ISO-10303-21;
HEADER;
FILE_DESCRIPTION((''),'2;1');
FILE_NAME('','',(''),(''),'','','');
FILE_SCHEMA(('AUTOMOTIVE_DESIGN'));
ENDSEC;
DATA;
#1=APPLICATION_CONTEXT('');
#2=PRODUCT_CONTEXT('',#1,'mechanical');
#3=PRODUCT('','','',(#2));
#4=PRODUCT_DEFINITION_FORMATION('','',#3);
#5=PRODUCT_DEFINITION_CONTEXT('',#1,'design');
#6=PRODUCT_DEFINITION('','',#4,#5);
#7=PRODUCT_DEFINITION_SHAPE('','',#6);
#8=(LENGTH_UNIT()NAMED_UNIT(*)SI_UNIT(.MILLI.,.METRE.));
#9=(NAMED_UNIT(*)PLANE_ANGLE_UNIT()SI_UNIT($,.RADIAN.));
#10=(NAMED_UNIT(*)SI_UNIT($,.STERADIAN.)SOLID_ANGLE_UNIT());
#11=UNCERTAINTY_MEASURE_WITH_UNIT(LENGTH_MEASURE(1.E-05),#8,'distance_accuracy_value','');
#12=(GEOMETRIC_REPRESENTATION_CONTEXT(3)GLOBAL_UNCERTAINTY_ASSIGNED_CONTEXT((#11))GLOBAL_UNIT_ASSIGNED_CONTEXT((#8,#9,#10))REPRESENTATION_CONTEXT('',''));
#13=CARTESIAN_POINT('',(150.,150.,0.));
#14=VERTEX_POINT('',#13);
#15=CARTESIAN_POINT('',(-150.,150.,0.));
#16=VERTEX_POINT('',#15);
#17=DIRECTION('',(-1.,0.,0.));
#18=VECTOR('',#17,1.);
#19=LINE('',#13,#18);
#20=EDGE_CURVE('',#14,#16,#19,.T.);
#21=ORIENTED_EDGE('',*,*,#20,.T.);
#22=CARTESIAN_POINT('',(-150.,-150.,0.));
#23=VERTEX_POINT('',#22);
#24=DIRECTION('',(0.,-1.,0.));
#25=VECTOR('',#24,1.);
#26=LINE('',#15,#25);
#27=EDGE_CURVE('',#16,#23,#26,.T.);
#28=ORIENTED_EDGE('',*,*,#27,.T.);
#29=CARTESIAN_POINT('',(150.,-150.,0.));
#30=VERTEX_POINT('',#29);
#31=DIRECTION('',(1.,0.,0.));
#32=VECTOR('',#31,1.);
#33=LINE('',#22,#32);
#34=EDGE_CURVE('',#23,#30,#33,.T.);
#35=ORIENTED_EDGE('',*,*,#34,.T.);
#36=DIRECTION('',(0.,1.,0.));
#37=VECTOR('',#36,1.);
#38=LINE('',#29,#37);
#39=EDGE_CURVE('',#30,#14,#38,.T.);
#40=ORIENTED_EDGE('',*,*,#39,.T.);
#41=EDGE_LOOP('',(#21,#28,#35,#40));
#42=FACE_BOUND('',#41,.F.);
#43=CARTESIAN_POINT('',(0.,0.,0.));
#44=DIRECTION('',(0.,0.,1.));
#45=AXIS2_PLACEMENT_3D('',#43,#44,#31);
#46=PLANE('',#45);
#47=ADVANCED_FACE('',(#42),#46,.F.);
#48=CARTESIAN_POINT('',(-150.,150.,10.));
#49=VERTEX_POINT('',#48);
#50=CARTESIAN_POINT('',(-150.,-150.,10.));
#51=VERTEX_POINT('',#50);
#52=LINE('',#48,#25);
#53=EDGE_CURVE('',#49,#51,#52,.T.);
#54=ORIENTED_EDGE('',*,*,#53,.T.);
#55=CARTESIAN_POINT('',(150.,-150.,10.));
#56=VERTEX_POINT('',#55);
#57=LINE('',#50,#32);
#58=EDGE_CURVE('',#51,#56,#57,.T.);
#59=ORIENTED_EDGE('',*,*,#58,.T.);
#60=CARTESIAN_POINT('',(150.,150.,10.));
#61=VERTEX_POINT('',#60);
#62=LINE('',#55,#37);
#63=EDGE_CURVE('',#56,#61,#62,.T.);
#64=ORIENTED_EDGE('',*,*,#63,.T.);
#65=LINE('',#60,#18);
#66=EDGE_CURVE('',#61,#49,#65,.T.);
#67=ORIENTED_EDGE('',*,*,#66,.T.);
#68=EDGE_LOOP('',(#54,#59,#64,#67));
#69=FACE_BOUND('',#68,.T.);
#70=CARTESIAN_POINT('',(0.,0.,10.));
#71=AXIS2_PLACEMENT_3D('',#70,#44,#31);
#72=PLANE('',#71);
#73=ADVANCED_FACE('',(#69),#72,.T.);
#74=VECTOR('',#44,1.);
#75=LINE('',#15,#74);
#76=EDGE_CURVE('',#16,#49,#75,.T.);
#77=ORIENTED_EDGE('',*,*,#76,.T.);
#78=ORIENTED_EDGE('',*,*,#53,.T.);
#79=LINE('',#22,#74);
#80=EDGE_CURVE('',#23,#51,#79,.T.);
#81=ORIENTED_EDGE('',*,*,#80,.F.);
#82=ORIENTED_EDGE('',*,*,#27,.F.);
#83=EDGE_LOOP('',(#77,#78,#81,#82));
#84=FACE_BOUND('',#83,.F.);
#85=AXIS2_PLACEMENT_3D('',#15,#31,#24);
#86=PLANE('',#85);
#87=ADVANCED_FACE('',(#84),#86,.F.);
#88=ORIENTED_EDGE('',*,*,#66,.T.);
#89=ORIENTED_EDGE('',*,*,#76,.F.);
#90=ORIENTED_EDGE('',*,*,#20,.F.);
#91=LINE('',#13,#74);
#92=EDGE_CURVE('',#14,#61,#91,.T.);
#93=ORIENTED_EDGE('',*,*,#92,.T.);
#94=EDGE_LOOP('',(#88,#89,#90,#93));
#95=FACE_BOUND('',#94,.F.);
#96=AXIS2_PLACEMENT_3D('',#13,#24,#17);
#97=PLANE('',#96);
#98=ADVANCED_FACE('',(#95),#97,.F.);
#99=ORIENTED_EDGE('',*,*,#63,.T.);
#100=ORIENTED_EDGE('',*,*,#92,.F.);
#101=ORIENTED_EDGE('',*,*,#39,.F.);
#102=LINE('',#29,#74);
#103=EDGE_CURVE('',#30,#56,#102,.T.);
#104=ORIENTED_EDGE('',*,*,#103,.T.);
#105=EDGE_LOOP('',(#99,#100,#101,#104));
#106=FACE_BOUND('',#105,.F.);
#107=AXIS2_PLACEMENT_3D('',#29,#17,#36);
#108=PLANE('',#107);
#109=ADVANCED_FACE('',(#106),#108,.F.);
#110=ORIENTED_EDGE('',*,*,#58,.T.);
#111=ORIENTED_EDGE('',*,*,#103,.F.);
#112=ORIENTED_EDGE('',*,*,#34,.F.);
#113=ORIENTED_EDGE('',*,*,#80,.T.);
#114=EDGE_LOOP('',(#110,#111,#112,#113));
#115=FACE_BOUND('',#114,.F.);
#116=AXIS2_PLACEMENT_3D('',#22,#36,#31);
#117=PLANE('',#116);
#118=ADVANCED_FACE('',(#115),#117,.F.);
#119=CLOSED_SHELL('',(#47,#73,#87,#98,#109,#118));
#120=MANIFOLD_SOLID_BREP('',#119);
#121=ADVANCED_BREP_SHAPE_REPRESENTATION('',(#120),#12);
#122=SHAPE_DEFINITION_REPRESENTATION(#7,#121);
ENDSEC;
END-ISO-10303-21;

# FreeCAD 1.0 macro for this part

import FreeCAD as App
import Part
import Sketcher

V = App.Vector
Q = App.Units.Quantity


def add_polygon(sketch, points):
    """Adds a closed chain of lines whose ends are joined by coincident constraints."""
    first, n = sketch.GeometryCount, len(points)
    for a, b in zip(points, points[1:] + points[:1]):
        sketch.addGeometry(Part.LineSegment(App.Vector(*a, 0), App.Vector(*b, 0)), False)
    for i in range(n):
        sketch.addConstraint(Sketcher.Constraint("Coincident", first + i, 2, first + (i + 1) % n, 1))

doc = App.newDocument("Part")
body = doc.addObject("PartDesign::Body", "Body")

# Sketch on XY plane
sketch1 = doc.addObject("Sketcher::SketchObject", "Sketch")
body.addObject(sketch1)
sketch1.AttachmentSupport = (doc.XY_Plane, [""])
sketch1.MapMode = "FlatFace"
add_polygon(sketch1, [(-150, 150), (-150, -150), (150, -150), (150, 150)])  # lines 0-3
sketch1.addConstraint([
    Sketcher.Constraint("Vertical", 0),
    Sketcher.Constraint("Horizontal", 1),
    Sketcher.Constraint("Vertical", 2),
    Sketcher.Constraint("Horizontal", 3),
    Sketcher.Constraint("Symmetric", 0, 2, 2, 2, -1, 1),
    Sketcher.Constraint("Equal", 3, 0),
    Sketcher.Constraint("DistanceX", 1, 1, 1, 2, Q("300 mm")),
])
pad1 = doc.addObject("PartDesign::Pad", "Pad")
body.addObject(pad1)
pad1.Profile = sketch1
pad1.Length = 10

doc.recompute()
